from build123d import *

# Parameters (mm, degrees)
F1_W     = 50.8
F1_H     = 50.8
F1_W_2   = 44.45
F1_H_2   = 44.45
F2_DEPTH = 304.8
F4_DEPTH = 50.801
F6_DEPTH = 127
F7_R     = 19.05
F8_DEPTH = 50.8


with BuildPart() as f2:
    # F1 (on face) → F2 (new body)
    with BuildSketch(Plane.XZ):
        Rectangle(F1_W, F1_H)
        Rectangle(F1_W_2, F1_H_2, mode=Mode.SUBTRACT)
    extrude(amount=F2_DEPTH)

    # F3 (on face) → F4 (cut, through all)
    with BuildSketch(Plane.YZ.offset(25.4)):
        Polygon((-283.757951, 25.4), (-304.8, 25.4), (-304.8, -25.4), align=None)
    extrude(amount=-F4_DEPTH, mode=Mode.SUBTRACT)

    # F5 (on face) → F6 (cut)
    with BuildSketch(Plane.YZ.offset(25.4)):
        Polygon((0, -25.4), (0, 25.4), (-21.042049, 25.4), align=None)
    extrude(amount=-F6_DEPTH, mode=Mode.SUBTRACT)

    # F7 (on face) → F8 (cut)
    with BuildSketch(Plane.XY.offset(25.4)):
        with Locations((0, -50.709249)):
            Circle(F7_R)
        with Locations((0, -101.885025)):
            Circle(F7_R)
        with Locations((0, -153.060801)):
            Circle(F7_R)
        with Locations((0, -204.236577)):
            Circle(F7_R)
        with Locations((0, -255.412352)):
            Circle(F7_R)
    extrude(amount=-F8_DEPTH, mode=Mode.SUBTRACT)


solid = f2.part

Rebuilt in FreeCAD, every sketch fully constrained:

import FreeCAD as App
import Part
import Sketcher
from FreeCAD import Vector
Q = App.Units.Quantity


def add_polygon(sketch, points):
    """Adds a closed chain of lines whose ends are joined by coincident constraints."""
    first, n = sketch.GeometryCount, len(points)
    for a, b in zip(points, points[1:] + points[:1]):
        sketch.addGeometry(Part.LineSegment(App.Vector(*a, 0), App.Vector(*b, 0)), False)
    for i in range(n):
        sketch.addConstraint(Sketcher.Constraint("Coincident", first + i, 2, first + (i + 1) % n, 1))

doc = App.newDocument("Part")
params = doc.addObject("Spreadsheet::Sheet", "Params")
for row, (alias, value) in enumerate([
    ("sketch1_width", "2 in"),
    ("sketch1_width2", "1.75 in"),
    ("pad1_length", "12 in"),
    ("sketch2_height", "2 in"),
    ("sketch3_height", "2 in"),
    ("pocket2_length", "5 in"),
    ("sketch4_diameter", "1.5 in"),
    ("pocket3_length", "2 in"),
], start=1):
    params.set(f"A{row}", alias)
    params.set(f"B{row}", "=" + value)
    params.setAlias(f"B{row}", alias)

body = doc.addObject("PartDesign::Body", "Body")

sketch1 = body.newObject("Sketcher::SketchObject", "Sketch")
sketch1.AttachmentSupport = (doc.getObject("XZ_Plane"), [""])
sketch1.MapMode = "FlatFace"
add_polygon(sketch1, [(-25.4, 25.4), (-25.4, -25.4), (25.4, -25.4), (25.4, 25.4)])
add_polygon(sketch1, [(22.225, -22.225), (-22.225, -22.225), (-22.225, 22.225), (22.225, 22.225)])
sketch1.addConstraint([
    Sketcher.Constraint("Vertical", 0),
    Sketcher.Constraint("Horizontal", 1),
    Sketcher.Constraint("Vertical", 2),
    Sketcher.Constraint("Horizontal", 3),
    Sketcher.Constraint("Horizontal", 4),
    Sketcher.Constraint("Vertical", 5),
    Sketcher.Constraint("Horizontal", 6),
    Sketcher.Constraint("Vertical", 7),
    Sketcher.Constraint("Symmetric", 0, 2, 2, 2, -1, 1),
    Sketcher.Constraint("Symmetric", 4, 2, 6, 2, -1, 1),
    Sketcher.Constraint("Equal", 3, 0),
    Sketcher.Constraint("Equal", 6, 5),
    Sketcher.Constraint("DistanceX", 1, 1, 1, 2, Q("2 in")),
    Sketcher.Constraint("DistanceX", 4, 2, 4, 1, Q("1.75 in")),
])
sketch1.setExpression("Constraints[20]", "Params.sketch1_width")
sketch1.setExpression("Constraints[21]", "Params.sketch1_width2")
pad1 = body.newObject("PartDesign::Pad", "Pad")
pad1.Profile = sketch1
pad1.setExpression("Length", "Params.pad1_length")

sketch2 = body.newObject("Sketcher::SketchObject", "Sketch001")
sketch2.AttachmentSupport = (doc.getObject("YZ_Plane"), [""])
sketch2.MapMode = "FlatFace"
sketch2.AttachmentOffset = App.Placement(Vector(0, 0, 1 * 25.4), App.Rotation())
add_polygon(sketch2, [(-283.757951, 25.4), (-304.8, 25.4), (-304.8, -25.4)])
sketch2.addConstraint([
    Sketcher.Constraint("Horizontal", 0),
    Sketcher.Constraint("Vertical", 1),
    Sketcher.Constraint("DistanceY", 1, 2, 1, 1, Q("2 in")),
    Sketcher.Constraint("DistanceX", 0, 2, -1, 1, Q("12 in")),
    Sketcher.Constraint("DistanceY", -1, 1, 0, 2, Q("1 in")),
    Sketcher.Constraint("Angle", 2, Q("67.5 deg")),
])
sketch2.setExpression("Constraints[5]", "Params.sketch2_height")
pocket1 = body.newObject("PartDesign::Pocket", "Pocket")
pocket1.Profile = sketch2
pocket1.Type = "ThroughAll"

sketch3 = body.newObject("Sketcher::SketchObject", "Sketch002")
sketch3.AttachmentSupport = (doc.getObject("YZ_Plane"), [""])
sketch3.MapMode = "FlatFace"
sketch3.AttachmentOffset = App.Placement(Vector(0, 0, 1 * 25.4), App.Rotation())
add_polygon(sketch3, [(0, -25.4), (0, 25.4), (-21.042049, 25.4)])
sketch3.addConstraint([
    Sketcher.Constraint("Vertical", 0),
    Sketcher.Constraint("Horizontal", 1),
    Sketcher.Constraint("Symmetric", 0, 2, 2, 2, -1, 1),
    Sketcher.Constraint("DistanceY", 0, 1, 0, 2, Q("2 in")),
    Sketcher.Constraint("Angle", 2, Q("-67.5 deg")),
])
sketch3.setExpression("Constraints[6]", "Params.sketch3_height")
pocket2 = body.newObject("PartDesign::Pocket", "Pocket001")
pocket2.Profile = sketch3
pocket2.setExpression("Length", "Params.pocket2_length")

sketch4 = body.newObject("Sketcher::SketchObject", "Sketch003")
sketch4.AttachmentSupport = (doc.getObject("XY_Plane"), [""])
sketch4.MapMode = "FlatFace"
sketch4.AttachmentOffset = App.Placement(Vector(0, 0, 1 * 25.4), App.Rotation())
sketch4.addGeometry([
    Part.Circle(Vector(0, -50.709249, 0), Vector(0, 0, 1), 19.05),
    Part.Circle(Vector(0, -101.885025, 0), Vector(0, 0, 1), 19.05),
    Part.Circle(Vector(0, -153.060801, 0), Vector(0, 0, 1), 19.05),
    Part.Circle(Vector(0, -204.236577, 0), Vector(0, 0, 1), 19.05),
    Part.Circle(Vector(0, -255.412352, 0), Vector(0, 0, 1), 19.05),
], False)
sketch4.addConstraint([
    Sketcher.Constraint("Equal", 0, 1),
    Sketcher.Constraint("Equal", 1, 2),
    Sketcher.Constraint("Equal", 2, 3),
    Sketcher.Constraint("Equal", 3, 4),
    Sketcher.Constraint("PointOnObject", 0, 3, -2),
    Sketcher.Constraint("PointOnObject", 1, 3, -2),
    Sketcher.Constraint("PointOnObject", 2, 3, -2),
    Sketcher.Constraint("PointOnObject", 3, 3, -2),
    Sketcher.Constraint("PointOnObject", 4, 3, -2),
    Sketcher.Constraint("Diameter", 0, Q("1.5 in")),
    Sketcher.Constraint("DistanceY", 2, 3, -1, 1, Q("153.060801 mm")),
    Sketcher.Constraint("DistanceY", 0, 3, -1, 1, Q("50.709249 mm")),
    Sketcher.Constraint("DistanceY", 4, 3, -1, 1, Q("255.412352 mm")),
    Sketcher.Constraint("DistanceY", 3, 3, 0, 3, Q("153.527328 mm")),
    Sketcher.Constraint("DistanceY", 1, 3, -1, 1, Q("101.885025 mm")),
])
sketch4.setExpression("Constraints[9]", "Params.sketch4_diameter")
pocket3 = body.newObject("PartDesign::Pocket", "Pocket002")
pocket3.Profile = sketch4
pocket3.setExpression("Length", "Params.pocket3_length")

doc.recompute()
